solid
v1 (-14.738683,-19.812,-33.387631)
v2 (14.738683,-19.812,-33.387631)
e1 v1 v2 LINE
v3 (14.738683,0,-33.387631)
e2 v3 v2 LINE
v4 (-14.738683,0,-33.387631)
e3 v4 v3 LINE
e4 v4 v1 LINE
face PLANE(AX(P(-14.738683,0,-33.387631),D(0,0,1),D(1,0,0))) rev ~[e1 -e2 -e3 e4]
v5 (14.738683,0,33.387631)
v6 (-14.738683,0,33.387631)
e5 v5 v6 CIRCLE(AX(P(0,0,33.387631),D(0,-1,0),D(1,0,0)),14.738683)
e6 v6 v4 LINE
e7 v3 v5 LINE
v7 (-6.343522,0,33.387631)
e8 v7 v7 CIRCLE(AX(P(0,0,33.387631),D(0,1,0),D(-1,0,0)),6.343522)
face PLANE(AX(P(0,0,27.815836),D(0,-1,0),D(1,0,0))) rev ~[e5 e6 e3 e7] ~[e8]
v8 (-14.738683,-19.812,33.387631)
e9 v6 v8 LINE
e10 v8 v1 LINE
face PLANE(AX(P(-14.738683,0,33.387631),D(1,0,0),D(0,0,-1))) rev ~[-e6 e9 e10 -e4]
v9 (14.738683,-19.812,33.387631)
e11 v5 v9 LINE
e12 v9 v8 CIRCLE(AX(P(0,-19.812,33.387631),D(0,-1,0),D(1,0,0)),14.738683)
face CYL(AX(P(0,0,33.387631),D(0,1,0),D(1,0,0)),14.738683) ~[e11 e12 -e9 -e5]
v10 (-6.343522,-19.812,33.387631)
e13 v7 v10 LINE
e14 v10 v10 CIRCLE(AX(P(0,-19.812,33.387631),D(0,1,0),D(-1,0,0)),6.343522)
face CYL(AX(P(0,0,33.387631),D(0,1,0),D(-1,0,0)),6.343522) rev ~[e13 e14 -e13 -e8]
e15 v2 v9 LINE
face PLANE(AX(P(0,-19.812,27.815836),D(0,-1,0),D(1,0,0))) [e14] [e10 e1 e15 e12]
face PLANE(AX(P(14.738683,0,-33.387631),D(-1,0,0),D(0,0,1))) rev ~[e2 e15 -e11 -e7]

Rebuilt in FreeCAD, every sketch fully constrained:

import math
import FreeCAD as App
import Part
import Sketcher
Q = App.Units.Quantity

doc = App.newDocument("Part")
body = doc.addObject("PartDesign::Body", "Body")

# Sketch on XZ plane
sketch1 = body.newObject("Sketcher::SketchObject", "Sketch")
sketch1.AttachmentSupport = (doc.getObject("XZ_Plane"), [""])
sketch1.MapMode = "FlatFace"
sketch1.addGeometry([
    Part.ArcOfCircle(Part.Circle(App.Vector(0, 33.387631, 0), App.Vector(0, 0, 1), 14.738683), math.radians(0), math.radians(180)),  # 0
    Part.LineSegment(App.Vector(-14.738683, 33.387631, 0), App.Vector(-14.738683, -33.387631, 0)),  # 1
    Part.LineSegment(App.Vector(-14.738683, -33.387631, 0), App.Vector(14.738683, -33.387631, 0)),  # 2
    Part.LineSegment(App.Vector(14.738683, -33.387631, 0), App.Vector(14.738683, 33.387631, 0)),  # 3
    Part.Circle(App.Vector(0, 33.387631, 0), App.Vector(0, 0, 1), 6.343522),  # 4
], False)
sketch1.addConstraint([
    Sketcher.Constraint("Tangent", 0, 2, 1, 1),
    Sketcher.Constraint("Coincident", 1, 2, 2, 1),
    Sketcher.Constraint("Coincident", 2, 2, 3, 1),
    Sketcher.Constraint("Tangent", 3, 2, 0, 1),
    Sketcher.Constraint("Vertical", 1),
    Sketcher.Constraint("Horizontal", 2),
    Sketcher.Constraint("Vertical", 3),
    Sketcher.Constraint("Coincident", 4, 3, 0, 3),
    Sketcher.Constraint("Symmetric", 0, 2, 2, 2, -1, 1),
    Sketcher.Constraint("Diameter", 4, Q("12.687044 mm")),
    Sketcher.Constraint("Radius", 0, Q("14.738683 mm")),
    Sketcher.Constraint("DistanceY", 1, 2, 1, 1, Q("66.775262 mm")),
])
pad1 = body.newObject("PartDesign::Pad", "Pad")
pad1.Profile = sketch1
pad1.Length = Q("0.78 in")

doc.recompute()
